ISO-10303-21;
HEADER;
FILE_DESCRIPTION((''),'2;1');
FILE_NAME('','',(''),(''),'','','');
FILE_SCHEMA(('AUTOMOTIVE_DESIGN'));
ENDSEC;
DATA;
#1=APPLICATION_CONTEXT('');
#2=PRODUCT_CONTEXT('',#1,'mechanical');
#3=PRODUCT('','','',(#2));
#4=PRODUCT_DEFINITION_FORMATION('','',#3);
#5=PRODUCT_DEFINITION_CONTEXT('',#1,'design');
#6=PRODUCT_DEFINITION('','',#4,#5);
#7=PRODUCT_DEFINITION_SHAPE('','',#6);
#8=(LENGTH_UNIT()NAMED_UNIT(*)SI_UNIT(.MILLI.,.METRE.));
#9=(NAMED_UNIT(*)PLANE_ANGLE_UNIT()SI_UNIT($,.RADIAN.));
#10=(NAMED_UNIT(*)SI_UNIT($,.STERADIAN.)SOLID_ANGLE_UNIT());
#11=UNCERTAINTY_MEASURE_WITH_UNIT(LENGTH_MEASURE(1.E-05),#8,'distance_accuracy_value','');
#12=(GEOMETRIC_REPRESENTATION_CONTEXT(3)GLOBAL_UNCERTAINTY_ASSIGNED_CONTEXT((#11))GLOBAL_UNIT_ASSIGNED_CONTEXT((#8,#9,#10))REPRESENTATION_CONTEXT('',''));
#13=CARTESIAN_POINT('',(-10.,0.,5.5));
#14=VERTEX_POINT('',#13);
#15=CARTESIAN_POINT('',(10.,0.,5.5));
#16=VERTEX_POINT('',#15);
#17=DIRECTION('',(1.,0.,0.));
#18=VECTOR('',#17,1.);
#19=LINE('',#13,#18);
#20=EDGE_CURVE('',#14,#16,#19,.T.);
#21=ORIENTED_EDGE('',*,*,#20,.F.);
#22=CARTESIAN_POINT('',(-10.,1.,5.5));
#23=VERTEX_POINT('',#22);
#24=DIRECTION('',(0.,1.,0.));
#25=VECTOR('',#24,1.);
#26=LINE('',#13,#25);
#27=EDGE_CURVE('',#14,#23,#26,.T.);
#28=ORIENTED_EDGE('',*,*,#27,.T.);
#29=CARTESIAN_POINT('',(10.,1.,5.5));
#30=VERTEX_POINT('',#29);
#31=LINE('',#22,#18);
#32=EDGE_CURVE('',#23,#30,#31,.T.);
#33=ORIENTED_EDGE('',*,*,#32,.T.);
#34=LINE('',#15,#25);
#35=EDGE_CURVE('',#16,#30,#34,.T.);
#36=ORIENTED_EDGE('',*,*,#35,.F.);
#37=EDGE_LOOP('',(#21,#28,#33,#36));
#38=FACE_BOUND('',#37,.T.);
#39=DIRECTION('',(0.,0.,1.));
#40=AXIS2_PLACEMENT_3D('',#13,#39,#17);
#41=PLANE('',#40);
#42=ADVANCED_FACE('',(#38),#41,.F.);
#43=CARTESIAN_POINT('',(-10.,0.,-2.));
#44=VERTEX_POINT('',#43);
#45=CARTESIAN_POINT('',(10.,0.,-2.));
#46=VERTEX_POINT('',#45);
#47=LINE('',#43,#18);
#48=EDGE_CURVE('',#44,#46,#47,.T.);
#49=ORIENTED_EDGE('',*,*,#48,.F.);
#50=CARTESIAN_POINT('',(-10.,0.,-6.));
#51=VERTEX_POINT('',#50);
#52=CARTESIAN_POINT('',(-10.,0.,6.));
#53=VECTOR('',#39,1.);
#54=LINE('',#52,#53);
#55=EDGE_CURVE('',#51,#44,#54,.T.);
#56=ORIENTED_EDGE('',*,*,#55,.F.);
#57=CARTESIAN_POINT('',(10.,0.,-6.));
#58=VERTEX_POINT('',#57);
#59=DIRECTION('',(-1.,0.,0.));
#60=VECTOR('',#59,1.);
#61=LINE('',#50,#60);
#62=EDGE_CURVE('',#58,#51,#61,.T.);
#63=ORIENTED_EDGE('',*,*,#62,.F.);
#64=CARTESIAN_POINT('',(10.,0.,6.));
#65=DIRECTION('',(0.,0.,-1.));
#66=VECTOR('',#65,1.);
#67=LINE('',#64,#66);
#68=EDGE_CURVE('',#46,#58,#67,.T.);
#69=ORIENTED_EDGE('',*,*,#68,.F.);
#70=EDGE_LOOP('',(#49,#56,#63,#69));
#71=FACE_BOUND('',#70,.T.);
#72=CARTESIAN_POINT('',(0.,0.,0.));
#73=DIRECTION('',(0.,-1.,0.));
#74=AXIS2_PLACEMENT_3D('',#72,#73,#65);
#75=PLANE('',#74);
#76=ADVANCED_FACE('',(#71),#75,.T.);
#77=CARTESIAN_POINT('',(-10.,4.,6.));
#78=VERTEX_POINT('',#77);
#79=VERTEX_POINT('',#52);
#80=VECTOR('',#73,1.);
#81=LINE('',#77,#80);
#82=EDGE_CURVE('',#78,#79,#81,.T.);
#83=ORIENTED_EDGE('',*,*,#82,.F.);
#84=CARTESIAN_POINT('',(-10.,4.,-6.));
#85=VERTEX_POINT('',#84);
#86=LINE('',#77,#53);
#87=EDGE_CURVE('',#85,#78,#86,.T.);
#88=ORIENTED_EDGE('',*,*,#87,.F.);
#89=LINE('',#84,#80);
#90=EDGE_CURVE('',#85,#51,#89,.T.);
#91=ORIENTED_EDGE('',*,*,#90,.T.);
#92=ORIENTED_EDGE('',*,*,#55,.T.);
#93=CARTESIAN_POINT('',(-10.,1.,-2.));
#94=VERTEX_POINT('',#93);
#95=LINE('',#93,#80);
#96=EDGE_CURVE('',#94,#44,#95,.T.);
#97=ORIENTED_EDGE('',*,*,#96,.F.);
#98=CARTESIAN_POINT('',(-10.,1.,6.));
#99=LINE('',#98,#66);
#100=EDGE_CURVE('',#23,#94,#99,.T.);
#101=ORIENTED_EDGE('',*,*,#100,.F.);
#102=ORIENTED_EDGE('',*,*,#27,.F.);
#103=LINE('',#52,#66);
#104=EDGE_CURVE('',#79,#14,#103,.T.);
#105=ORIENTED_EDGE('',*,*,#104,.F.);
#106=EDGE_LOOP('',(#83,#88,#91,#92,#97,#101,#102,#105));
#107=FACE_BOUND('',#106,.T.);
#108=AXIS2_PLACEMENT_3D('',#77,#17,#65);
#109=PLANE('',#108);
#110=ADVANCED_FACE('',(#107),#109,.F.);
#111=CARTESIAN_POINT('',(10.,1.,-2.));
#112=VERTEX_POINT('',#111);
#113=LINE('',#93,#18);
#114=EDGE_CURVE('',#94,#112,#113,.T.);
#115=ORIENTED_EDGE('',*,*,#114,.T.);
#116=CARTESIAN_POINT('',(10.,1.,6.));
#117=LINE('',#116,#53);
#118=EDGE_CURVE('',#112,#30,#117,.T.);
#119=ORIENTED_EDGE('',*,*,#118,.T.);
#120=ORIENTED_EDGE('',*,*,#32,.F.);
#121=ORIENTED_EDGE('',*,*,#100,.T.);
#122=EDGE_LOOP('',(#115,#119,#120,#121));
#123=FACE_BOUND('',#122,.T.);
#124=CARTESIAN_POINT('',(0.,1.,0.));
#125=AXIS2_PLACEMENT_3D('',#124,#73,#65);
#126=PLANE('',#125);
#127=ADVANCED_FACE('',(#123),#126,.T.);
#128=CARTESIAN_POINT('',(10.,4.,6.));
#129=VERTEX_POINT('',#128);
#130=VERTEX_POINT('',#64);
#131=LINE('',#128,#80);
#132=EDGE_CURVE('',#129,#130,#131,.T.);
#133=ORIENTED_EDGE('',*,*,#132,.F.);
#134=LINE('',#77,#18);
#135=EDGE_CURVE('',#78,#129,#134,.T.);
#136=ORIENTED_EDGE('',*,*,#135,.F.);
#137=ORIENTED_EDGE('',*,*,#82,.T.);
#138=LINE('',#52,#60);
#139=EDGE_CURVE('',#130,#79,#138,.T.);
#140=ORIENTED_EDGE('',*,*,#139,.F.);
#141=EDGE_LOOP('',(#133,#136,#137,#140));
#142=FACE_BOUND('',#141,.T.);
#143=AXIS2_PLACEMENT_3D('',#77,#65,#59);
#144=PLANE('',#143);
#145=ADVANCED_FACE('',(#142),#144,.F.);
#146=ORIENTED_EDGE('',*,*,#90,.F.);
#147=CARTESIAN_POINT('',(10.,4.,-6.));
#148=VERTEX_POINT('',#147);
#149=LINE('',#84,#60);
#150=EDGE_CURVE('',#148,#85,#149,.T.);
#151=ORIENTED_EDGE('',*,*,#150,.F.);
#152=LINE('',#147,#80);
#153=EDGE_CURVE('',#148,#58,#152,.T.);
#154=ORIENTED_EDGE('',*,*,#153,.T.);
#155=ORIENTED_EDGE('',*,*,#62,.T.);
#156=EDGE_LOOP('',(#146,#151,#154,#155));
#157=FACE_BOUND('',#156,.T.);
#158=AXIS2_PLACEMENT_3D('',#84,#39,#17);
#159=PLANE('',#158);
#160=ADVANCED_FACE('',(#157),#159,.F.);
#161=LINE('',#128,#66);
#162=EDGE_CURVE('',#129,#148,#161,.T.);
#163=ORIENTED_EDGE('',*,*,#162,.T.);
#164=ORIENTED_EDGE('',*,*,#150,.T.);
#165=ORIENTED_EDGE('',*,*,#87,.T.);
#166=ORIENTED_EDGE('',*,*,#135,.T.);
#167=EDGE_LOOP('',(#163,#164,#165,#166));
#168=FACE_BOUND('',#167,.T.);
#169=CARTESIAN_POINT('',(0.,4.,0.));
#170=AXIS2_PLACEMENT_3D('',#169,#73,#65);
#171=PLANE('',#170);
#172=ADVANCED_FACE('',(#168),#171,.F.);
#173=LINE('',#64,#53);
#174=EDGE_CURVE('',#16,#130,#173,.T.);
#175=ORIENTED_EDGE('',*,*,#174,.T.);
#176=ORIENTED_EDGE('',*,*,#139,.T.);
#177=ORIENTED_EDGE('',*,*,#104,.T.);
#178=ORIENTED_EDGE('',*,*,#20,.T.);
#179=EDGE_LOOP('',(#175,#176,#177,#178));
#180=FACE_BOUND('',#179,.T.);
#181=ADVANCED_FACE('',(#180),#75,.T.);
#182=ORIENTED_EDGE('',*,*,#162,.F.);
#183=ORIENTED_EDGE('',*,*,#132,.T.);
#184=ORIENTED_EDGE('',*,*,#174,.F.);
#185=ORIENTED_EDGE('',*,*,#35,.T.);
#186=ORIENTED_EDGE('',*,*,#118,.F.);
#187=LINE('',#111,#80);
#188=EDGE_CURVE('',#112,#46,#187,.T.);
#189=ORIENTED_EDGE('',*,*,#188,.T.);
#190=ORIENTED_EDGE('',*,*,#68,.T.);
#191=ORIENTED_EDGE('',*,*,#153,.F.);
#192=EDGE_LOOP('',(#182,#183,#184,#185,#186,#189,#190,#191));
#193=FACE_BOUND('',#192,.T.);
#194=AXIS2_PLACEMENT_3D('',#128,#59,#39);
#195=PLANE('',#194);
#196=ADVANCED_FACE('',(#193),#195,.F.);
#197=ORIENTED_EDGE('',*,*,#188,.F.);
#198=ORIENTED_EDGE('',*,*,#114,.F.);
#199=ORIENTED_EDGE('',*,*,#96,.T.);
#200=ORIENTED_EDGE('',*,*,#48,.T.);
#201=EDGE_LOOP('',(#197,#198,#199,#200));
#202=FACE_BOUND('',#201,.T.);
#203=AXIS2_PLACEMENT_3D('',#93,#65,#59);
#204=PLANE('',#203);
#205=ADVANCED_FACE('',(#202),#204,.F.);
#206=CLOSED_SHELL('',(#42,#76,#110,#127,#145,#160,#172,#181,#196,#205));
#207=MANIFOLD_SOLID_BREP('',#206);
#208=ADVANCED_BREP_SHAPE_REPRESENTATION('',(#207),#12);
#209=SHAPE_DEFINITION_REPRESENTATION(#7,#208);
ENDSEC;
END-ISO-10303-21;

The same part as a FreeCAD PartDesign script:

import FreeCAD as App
import Part
import Sketcher
from FreeCAD import Vector

doc = App.newDocument("Part")
body = doc.addObject("PartDesign::Body", "Body")

# Sketch on XZ plane
sketch1 = body.newObject("Sketcher::SketchObject", "Sketch")
sketch1.AttachmentSupport = (doc.getObject("XZ_Plane"), [""])
sketch1.MapMode = "FlatFace"
sketch1.addGeometry([
    Part.LineSegment(Vector(-10, -6, 0), Vector(-10, 6, 0)),
    Part.LineSegment(Vector(-10, 6, 0), Vector(10, 6, 0)),
    Part.LineSegment(Vector(10, 6, 0), Vector(10, -6, 0)),
    Part.LineSegment(Vector(10, -6, 0), Vector(-10, -6, 0)),
], False)
sketch1.addConstraint([
    Sketcher.Constraint("Coincident", 0, 2, 1, 1),
    Sketcher.Constraint("Coincident", 1, 2, 2, 1),
    Sketcher.Constraint("Coincident", 2, 2, 3, 1),
    Sketcher.Constraint("Coincident", 3, 2, 0, 1),
    Sketcher.Constraint("Vertical", 0),
    Sketcher.Constraint("Horizontal", 1),
    Sketcher.Constraint("Vertical", 2),
    Sketcher.Constraint("Horizontal", 3),
    Sketcher.Constraint("Symmetric", 0, 2, 2, 2, -1, 1),
    Sketcher.Constraint("DistanceX", 1, 1, 1, 2, 20.0),
    Sketcher.Constraint("DistanceY", 0, 1, 0, 2, 12.0),
])
pad1 = body.newObject("PartDesign::Pad", "Pad")
pad1.Profile = sketch1
pad1.Length = 4
pad1.Reversed = True

# Sketch on XZ plane
sketch2 = body.newObject("Sketcher::SketchObject", "Sketch001")
sketch2.AttachmentSupport = (doc.getObject("XZ_Plane"), [""])
sketch2.MapMode = "FlatFace"
sketch2.addGeometry([
    Part.LineSegment(Vector(-10, 6, 0), Vector(-10, -2, 0)),
    Part.LineSegment(Vector(-10, -2, 0), Vector(10, -2, 0)),
    Part.LineSegment(Vector(10, -2, 0), Vector(10, 6, 0)),
    Part.LineSegment(Vector(10, 6, 0), Vector(-10, 6, 0)),
], False)
sketch2.addConstraint([
    Sketcher.Constraint("Coincident", 0, 2, 1, 1),
    Sketcher.Constraint("Coincident", 1, 2, 2, 1),
    Sketcher.Constraint("Coincident", 2, 2, 3, 1),
    Sketcher.Constraint("Coincident", 3, 2, 0, 1),
    Sketcher.Constraint("Vertical", 0),
    Sketcher.Constraint("Horizontal", 1),
    Sketcher.Constraint("Vertical", 2),
    Sketcher.Constraint("Horizontal", 3),
    Sketcher.Constraint("DistanceX", 1, 1, 1, 2, 20.0),
    Sketcher.Constraint("DistanceY", 0, 2, 0, 1, 8.0),
    Sketcher.Constraint("DistanceX", 0, 2, -1, 1, 10.0),
    Sketcher.Constraint("DistanceY", 0, 2, -1, 1, 2.0),
])
pocket1 = body.newObject("PartDesign::Pocket", "Pocket")
pocket1.Profile = sketch2
pocket1.Length = 1

# Sketch on XZ plane
sketch3 = body.newObject("Sketcher::SketchObject", "Sketch002")
sketch3.AttachmentSupport = (doc.getObject("XZ_Plane"), [""])
sketch3.MapMode = "FlatFace"
sketch3.AttachmentOffset = App.Placement(Vector(0, 0, -1), App.Rotation())
sketch3.addGeometry([
    Part.LineSegment(Vector(-10, 6, 0), Vector(-10, 5.5, 0)),
    Part.LineSegment(Vector(-10, 5.5, 0), Vector(10, 5.5, 0)),
    Part.LineSegment(Vector(10, 5.5, 0), Vector(10, 6, 0)),
    Part.LineSegment(Vector(10, 6, 0), Vector(-10, 6, 0)),
], False)
sketch3.addConstraint([
    Sketcher.Constraint("Coincident", 0, 2, 1, 1),
    Sketcher.Constraint("Coincident", 1, 2, 2, 1),
    Sketcher.Constraint("Coincident", 2, 2, 3, 1),
    Sketcher.Constraint("Coincident", 3, 2, 0, 1),
    Sketcher.Constraint("Vertical", 0),
    Sketcher.Constraint("Horizontal", 1),
    Sketcher.Constraint("Vertical", 2),
    Sketcher.Constraint("Horizontal", 3),
    Sketcher.Constraint("DistanceX", 1, 1, 1, 2, 20.0),
    Sketcher.Constraint("DistanceY", 0, 2, 0, 1, 0.5),
    Sketcher.Constraint("DistanceX", 0, 2, -1, 1, 10.0),
    Sketcher.Constraint("DistanceY", -1, 1, 2, 2, 6.0),
])
pad2 = body.newObject("PartDesign::Pad", "Pad001")
pad2.Profile = sketch3
pad2.Length = 1

doc.recompute()
